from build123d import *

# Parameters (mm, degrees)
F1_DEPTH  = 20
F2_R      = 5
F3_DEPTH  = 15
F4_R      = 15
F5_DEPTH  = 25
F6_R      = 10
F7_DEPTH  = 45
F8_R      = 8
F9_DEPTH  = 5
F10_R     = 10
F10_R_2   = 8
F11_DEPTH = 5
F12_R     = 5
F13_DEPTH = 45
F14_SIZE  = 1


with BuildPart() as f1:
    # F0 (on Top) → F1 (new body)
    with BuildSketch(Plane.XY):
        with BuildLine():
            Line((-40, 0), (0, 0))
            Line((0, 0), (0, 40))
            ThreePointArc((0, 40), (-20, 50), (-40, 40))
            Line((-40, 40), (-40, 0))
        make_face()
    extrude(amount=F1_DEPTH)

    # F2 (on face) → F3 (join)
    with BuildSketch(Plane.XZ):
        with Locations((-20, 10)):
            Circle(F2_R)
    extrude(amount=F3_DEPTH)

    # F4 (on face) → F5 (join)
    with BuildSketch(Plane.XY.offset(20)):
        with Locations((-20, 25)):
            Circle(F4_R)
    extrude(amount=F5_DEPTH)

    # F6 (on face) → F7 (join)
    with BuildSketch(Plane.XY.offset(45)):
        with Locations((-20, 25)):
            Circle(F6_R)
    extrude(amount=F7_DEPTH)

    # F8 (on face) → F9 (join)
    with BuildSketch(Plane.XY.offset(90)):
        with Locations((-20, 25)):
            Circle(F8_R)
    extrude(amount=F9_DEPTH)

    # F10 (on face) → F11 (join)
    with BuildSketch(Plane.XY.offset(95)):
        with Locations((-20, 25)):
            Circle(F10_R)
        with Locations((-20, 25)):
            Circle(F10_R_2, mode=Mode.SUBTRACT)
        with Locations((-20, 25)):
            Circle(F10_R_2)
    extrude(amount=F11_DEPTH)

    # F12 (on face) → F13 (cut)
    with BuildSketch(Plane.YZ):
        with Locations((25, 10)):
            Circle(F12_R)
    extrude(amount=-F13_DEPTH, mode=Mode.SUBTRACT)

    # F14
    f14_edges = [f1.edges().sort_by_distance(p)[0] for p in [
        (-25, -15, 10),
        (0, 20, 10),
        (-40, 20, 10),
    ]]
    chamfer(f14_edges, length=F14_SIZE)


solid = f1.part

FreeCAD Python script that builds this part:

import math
import FreeCAD as App
import Part
import Sketcher


def edges_at(feature, points):
    """Names of the edges that pass closest to the given points."""
    edges = feature.Shape.Edges
    near = lambda p: min(range(len(edges)), key=lambda i: edges[i].distToShape(Part.Vertex(*p))[0])
    return sorted({f"Edge{near(p) + 1}" for p in points})

doc = App.newDocument("Part")
params = doc.addObject("Spreadsheet::Sheet", "Params")
for row, (alias, value) in enumerate([
    ("sketch1_radius", "25 mm"),
    ("sketch1_width", "40 mm"),
    ("pad1_length", "20 mm"),
    ("sketch2_diameter", "10 mm"),
    ("pad2_length", "15 mm"),
    ("sketch3_diameter", "30 mm"),
    ("pad3_length", "25 mm"),
    ("sketch4_diameter", "20 mm"),
    ("pad4_length", "45 mm"),
    ("sketch5_diameter", "16 mm"),
    ("pad5_length", "5 mm"),
    ("sketch6_diameter", "20 mm"),
    ("pad6_length", "5 mm"),
    ("sketch7_diameter", "10 mm"),
    ("pocket1_length", "45 mm"),
    ("chamfer_size", "1 mm"),
], start=1):
    params.set(f"A{row}", alias)
    params.set(f"B{row}", "=" + value)
    params.setAlias(f"B{row}", alias)

body = doc.addObject("PartDesign::Body", "Body")

# Sketch on XY plane
sketch1 = doc.addObject("Sketcher::SketchObject", "Sketch")
body.addObject(sketch1)
sketch1.AttachmentSupport = (doc.XY_Plane, [""])
sketch1.MapMode = "FlatFace"
sketch1.addGeometry([
    Part.LineSegment(App.Vector(-40, 0, 0), App.Vector(0, 0, 0)),
    Part.LineSegment(App.Vector(0, 0, 0), App.Vector(0, 40, 0)),
    Part.ArcOfCircle(Part.Circle(App.Vector(-20, 25, 0), App.Vector(0, 0, 1), 25), math.radians(37), math.radians(143)),
    Part.LineSegment(App.Vector(-40, 40, 0), App.Vector(-40, 0, 0)),
], False)
sketch1.addConstraint([
    Sketcher.Constraint("Coincident", 0, 2, 1, 1),
    Sketcher.Constraint("Coincident", 1, 2, 2, 1),
    Sketcher.Constraint("Coincident", 2, 2, 3, 1),
    Sketcher.Constraint("Coincident", 3, 2, 0, 1),
    Sketcher.Constraint("Horizontal", 0),
    Sketcher.Constraint("Vertical", 1),
    Sketcher.Constraint("Vertical", 3),
    Sketcher.Constraint("Coincident", 0, 2, -1, 1),
    Sketcher.Constraint("Horizontal", 1, 2, 2, 2),
    Sketcher.Constraint("Equal", 0, 1),
    Sketcher.Constraint("Radius", 2, 25.0),
    Sketcher.Constraint("DistanceX", 0, 1, 0, 2, 40.0),
])
sketch1.setExpression("Constraints[10]", "Params.sketch1_radius")
sketch1.setExpression("Constraints[11]", "Params.sketch1_width")
pad1 = doc.addObject("PartDesign::Pad", "Pad")
body.addObject(pad1)
pad1.Profile = sketch1
pad1.setExpression("Length", "Params.pad1_length")

# Sketch on XZ plane
sketch2 = doc.addObject("Sketcher::SketchObject", "Sketch001")
body.addObject(sketch2)
sketch2.AttachmentSupport = (doc.XZ_Plane, [""])
sketch2.MapMode = "FlatFace"
sketch2.addGeometry(Part.Circle(App.Vector(-20, 10, 0), App.Vector(0, 0, 1), 5), False)
sketch2.addConstraint([
    Sketcher.Constraint("Diameter", 0, 10.0),
    Sketcher.Constraint("DistanceX", 0, 3, -1, 1, 20.0),
    Sketcher.Constraint("DistanceY", -1, 1, 0, 3, 10.0),
])
sketch2.setExpression("Constraints[0]", "Params.sketch2_diameter")
pad2 = doc.addObject("PartDesign::Pad", "Pad001")
body.addObject(pad2)
pad2.Profile = sketch2
pad2.setExpression("Length", "Params.pad2_length")

# Sketch on XY plane
sketch3 = doc.addObject("Sketcher::SketchObject", "Sketch002")
body.addObject(sketch3)
sketch3.AttachmentSupport = (doc.XY_Plane, [""])
sketch3.MapMode = "FlatFace"
sketch3.AttachmentOffset = App.Placement(App.Vector(0, 0, 20), App.Rotation())
sketch3.addGeometry(Part.Circle(App.Vector(-20, 25, 0), App.Vector(0, 0, 1), 15), False)
sketch3.addConstraint([
    Sketcher.Constraint("Diameter", 0, 30.0),
    Sketcher.Constraint("DistanceX", 0, 3, -1, 1, 20.0),
    Sketcher.Constraint("DistanceY", -1, 1, 0, 3, 25.0),
])
sketch3.setExpression("Constraints[0]", "Params.sketch3_diameter")
pad3 = doc.addObject("PartDesign::Pad", "Pad002")
body.addObject(pad3)
pad3.Profile = sketch3
pad3.setExpression("Length", "Params.pad3_length")

# Sketch on XY plane
sketch4 = doc.addObject("Sketcher::SketchObject", "Sketch003")
body.addObject(sketch4)
sketch4.AttachmentSupport = (doc.XY_Plane, [""])
sketch4.MapMode = "FlatFace"
sketch4.AttachmentOffset = App.Placement(App.Vector(0, 0, 45), App.Rotation())
sketch4.addGeometry(Part.Circle(App.Vector(-20, 25, 0), App.Vector(0, 0, 1), 10), False)
sketch4.addConstraint([
    Sketcher.Constraint("Diameter", 0, 20.0),
    Sketcher.Constraint("DistanceX", 0, 3, -1, 1, 20.0),
    Sketcher.Constraint("DistanceY", -1, 1, 0, 3, 25.0),
])
sketch4.setExpression("Constraints[0]", "Params.sketch4_diameter")
pad4 = doc.addObject("PartDesign::Pad", "Pad003")
body.addObject(pad4)
pad4.Profile = sketch4
pad4.setExpression("Length", "Params.pad4_length")

# Sketch on XY plane
sketch5 = doc.addObject("Sketcher::SketchObject", "Sketch004")
body.addObject(sketch5)
sketch5.AttachmentSupport = (doc.XY_Plane, [""])
sketch5.MapMode = "FlatFace"
sketch5.AttachmentOffset = App.Placement(App.Vector(0, 0, 90), App.Rotation())
sketch5.addGeometry(Part.Circle(App.Vector(-20, 25, 0), App.Vector(0, 0, 1), 8), False)
sketch5.addConstraint([
    Sketcher.Constraint("Diameter", 0, 16.0),
    Sketcher.Constraint("DistanceX", 0, 3, -1, 1, 20.0),
    Sketcher.Constraint("DistanceY", -1, 1, 0, 3, 25.0),
])
sketch5.setExpression("Constraints[0]", "Params.sketch5_diameter")
pad5 = doc.addObject("PartDesign::Pad", "Pad004")
body.addObject(pad5)
pad5.Profile = sketch5
pad5.setExpression("Length", "Params.pad5_length")

# Sketch on XY plane
sketch6 = doc.addObject("Sketcher::SketchObject", "Sketch005")
body.addObject(sketch6)
sketch6.AttachmentSupport = (doc.XY_Plane, [""])
sketch6.MapMode = "FlatFace"
sketch6.AttachmentOffset = App.Placement(App.Vector(0, 0, 95), App.Rotation())
sketch6.addGeometry(Part.Circle(App.Vector(-20, 25, 0), App.Vector(0, 0, 1), 10), False)
sketch6.addConstraint([
    Sketcher.Constraint("Diameter", 0, 20.0),
    Sketcher.Constraint("DistanceX", 0, 3, -1, 1, 20.0),
    Sketcher.Constraint("DistanceY", -1, 1, 0, 3, 25.0),
])
sketch6.setExpression("Constraints[0]", "Params.sketch6_diameter")
pad6 = doc.addObject("PartDesign::Pad", "Pad005")
body.addObject(pad6)
pad6.Profile = sketch6
pad6.setExpression("Length", "Params.pad6_length")

# Sketch on YZ plane
sketch7 = doc.addObject("Sketcher::SketchObject", "Sketch006")
body.addObject(sketch7)
sketch7.AttachmentSupport = (doc.YZ_Plane, [""])
sketch7.MapMode = "FlatFace"
sketch7.addGeometry(Part.Circle(App.Vector(25, 10, 0), App.Vector(0, 0, 1), 5), False)
sketch7.addConstraint([
    Sketcher.Constraint("Diameter", 0, 10.0),
    Sketcher.Constraint("DistanceX", -1, 1, 0, 3, 25.0),
    Sketcher.Constraint("DistanceY", -1, 1, 0, 3, 10.0),
])
sketch7.setExpression("Constraints[0]", "Params.sketch7_diameter")
pocket1 = doc.addObject("PartDesign::Pocket", "Pocket")
body.addObject(pocket1)
pocket1.Profile = sketch7
pocket1.setExpression("Length", "Params.pocket1_length")
doc.recompute()

chamfer = doc.addObject("PartDesign::Chamfer", "Chamfer")
body.addObject(chamfer)
chamfer.Base = (pocket1, edges_at(pocket1, [(-25, -15, 10), (0, 20, 10), (-40, 20, 10)]))
chamfer.setExpression("Size", "Params.chamfer_size")

doc.recompute()
